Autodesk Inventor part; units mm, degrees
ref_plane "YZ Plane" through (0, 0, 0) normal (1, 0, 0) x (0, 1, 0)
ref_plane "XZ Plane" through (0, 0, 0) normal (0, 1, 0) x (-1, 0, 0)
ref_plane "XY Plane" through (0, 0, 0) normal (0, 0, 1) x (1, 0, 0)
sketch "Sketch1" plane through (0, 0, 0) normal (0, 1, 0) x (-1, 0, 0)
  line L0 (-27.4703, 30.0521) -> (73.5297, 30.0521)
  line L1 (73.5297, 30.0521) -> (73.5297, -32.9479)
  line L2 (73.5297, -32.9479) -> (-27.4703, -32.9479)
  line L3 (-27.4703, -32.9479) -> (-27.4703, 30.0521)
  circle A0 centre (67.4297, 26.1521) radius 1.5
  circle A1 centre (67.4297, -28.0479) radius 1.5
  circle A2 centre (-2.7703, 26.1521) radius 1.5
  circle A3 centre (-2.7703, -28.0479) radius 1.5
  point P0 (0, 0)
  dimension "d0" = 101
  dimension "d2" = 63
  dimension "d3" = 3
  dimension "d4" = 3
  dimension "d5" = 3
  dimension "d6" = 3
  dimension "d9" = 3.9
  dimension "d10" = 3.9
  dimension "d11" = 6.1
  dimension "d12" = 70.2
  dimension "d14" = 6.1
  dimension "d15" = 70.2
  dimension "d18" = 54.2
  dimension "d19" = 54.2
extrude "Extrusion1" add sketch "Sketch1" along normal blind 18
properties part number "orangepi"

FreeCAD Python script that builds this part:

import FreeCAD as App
import Part
import Sketcher


def add_polygon(sketch, points):
    """Adds a closed chain of lines whose ends are joined by coincident constraints."""
    first, n = sketch.GeometryCount, len(points)
    for a, b in zip(points, points[1:] + points[:1]):
        sketch.addGeometry(Part.LineSegment(App.Vector(*a, 0), App.Vector(*b, 0)), False)
    for i in range(n):
        sketch.addConstraint(Sketcher.Constraint("Coincident", first + i, 2, first + (i + 1) % n, 1))

doc = App.newDocument("Part")
body = doc.addObject("PartDesign::Body", "Body")

# Sketch on XZ plane
sketch1 = body.newObject("Sketcher::SketchObject", "Sketch")
sketch1.AttachmentSupport = (doc.getObject("XZ_Plane"), [""])
sketch1.MapMode = "FlatFace"
add_polygon(sketch1, [(-73.5, 30.1), (27.5, 30.1), (27.5, -32.9), (-73.5, -32.9)])  # lines 0-3
sketch1.addGeometry(Part.Circle(App.Vector(2.8, -28, 0), App.Vector(0, 0, 1), 1.5), False)  # 4
sketch1.addGeometry(Part.Circle(App.Vector(-67.4, -28, 0), App.Vector(0, 0, 1), 1.5), False)  # 5
sketch1.addGeometry(Part.Circle(App.Vector(2.8, 26.2, 0), App.Vector(0, 0, 1), 1.5), False)  # 6
sketch1.addGeometry(Part.Circle(App.Vector(-67.4, 26.2, 0), App.Vector(0, 0, 1), 1.5), False)  # 7
sketch1.addConstraint([
    Sketcher.Constraint("Horizontal", 0),
    Sketcher.Constraint("Vertical", 1),
    Sketcher.Constraint("Horizontal", 2),
    Sketcher.Constraint("Vertical", 3),
    Sketcher.Constraint("Equal", 4, 5),
    Sketcher.Constraint("Equal", 5, 6),
    Sketcher.Constraint("Equal", 6, 7),
    Sketcher.Constraint("Horizontal", 4, 3, 5, 3),
    Sketcher.Constraint("Horizontal", 6, 3, 7, 3),
    Sketcher.Constraint("Vertical", 4, 3, 6, 3),
    Sketcher.Constraint("Vertical", 5, 3, 7, 3),
    Sketcher.Constraint("Diameter", 4, 3.0),
    Sketcher.Constraint("DistanceX", 0, 1, 0, 2, 101.0),
    Sketcher.Constraint("DistanceY", 1, 2, 1, 1, 63.0),
    Sketcher.Constraint("DistanceX", 5, 3, 4, 3, 70.2),
    Sketcher.Constraint("DistanceY", 4, 3, 6, 3, 54.2),
    Sketcher.Constraint("DistanceY", 6, 3, 0, 2, 3.9),
    Sketcher.Constraint("DistanceX", 2, 2, 5, 3, 6.1),
    Sketcher.Constraint("DistanceY", 4, 3, -1, 1, 28.048),
    Sketcher.Constraint("DistanceX", -1, 1, 4, 3, 2.7703),
])
pad1 = body.newObject("PartDesign::Pad", "Pad")
pad1.Profile = sketch1
pad1.Length = 18
pad1.Reversed = True

doc.recompute()
